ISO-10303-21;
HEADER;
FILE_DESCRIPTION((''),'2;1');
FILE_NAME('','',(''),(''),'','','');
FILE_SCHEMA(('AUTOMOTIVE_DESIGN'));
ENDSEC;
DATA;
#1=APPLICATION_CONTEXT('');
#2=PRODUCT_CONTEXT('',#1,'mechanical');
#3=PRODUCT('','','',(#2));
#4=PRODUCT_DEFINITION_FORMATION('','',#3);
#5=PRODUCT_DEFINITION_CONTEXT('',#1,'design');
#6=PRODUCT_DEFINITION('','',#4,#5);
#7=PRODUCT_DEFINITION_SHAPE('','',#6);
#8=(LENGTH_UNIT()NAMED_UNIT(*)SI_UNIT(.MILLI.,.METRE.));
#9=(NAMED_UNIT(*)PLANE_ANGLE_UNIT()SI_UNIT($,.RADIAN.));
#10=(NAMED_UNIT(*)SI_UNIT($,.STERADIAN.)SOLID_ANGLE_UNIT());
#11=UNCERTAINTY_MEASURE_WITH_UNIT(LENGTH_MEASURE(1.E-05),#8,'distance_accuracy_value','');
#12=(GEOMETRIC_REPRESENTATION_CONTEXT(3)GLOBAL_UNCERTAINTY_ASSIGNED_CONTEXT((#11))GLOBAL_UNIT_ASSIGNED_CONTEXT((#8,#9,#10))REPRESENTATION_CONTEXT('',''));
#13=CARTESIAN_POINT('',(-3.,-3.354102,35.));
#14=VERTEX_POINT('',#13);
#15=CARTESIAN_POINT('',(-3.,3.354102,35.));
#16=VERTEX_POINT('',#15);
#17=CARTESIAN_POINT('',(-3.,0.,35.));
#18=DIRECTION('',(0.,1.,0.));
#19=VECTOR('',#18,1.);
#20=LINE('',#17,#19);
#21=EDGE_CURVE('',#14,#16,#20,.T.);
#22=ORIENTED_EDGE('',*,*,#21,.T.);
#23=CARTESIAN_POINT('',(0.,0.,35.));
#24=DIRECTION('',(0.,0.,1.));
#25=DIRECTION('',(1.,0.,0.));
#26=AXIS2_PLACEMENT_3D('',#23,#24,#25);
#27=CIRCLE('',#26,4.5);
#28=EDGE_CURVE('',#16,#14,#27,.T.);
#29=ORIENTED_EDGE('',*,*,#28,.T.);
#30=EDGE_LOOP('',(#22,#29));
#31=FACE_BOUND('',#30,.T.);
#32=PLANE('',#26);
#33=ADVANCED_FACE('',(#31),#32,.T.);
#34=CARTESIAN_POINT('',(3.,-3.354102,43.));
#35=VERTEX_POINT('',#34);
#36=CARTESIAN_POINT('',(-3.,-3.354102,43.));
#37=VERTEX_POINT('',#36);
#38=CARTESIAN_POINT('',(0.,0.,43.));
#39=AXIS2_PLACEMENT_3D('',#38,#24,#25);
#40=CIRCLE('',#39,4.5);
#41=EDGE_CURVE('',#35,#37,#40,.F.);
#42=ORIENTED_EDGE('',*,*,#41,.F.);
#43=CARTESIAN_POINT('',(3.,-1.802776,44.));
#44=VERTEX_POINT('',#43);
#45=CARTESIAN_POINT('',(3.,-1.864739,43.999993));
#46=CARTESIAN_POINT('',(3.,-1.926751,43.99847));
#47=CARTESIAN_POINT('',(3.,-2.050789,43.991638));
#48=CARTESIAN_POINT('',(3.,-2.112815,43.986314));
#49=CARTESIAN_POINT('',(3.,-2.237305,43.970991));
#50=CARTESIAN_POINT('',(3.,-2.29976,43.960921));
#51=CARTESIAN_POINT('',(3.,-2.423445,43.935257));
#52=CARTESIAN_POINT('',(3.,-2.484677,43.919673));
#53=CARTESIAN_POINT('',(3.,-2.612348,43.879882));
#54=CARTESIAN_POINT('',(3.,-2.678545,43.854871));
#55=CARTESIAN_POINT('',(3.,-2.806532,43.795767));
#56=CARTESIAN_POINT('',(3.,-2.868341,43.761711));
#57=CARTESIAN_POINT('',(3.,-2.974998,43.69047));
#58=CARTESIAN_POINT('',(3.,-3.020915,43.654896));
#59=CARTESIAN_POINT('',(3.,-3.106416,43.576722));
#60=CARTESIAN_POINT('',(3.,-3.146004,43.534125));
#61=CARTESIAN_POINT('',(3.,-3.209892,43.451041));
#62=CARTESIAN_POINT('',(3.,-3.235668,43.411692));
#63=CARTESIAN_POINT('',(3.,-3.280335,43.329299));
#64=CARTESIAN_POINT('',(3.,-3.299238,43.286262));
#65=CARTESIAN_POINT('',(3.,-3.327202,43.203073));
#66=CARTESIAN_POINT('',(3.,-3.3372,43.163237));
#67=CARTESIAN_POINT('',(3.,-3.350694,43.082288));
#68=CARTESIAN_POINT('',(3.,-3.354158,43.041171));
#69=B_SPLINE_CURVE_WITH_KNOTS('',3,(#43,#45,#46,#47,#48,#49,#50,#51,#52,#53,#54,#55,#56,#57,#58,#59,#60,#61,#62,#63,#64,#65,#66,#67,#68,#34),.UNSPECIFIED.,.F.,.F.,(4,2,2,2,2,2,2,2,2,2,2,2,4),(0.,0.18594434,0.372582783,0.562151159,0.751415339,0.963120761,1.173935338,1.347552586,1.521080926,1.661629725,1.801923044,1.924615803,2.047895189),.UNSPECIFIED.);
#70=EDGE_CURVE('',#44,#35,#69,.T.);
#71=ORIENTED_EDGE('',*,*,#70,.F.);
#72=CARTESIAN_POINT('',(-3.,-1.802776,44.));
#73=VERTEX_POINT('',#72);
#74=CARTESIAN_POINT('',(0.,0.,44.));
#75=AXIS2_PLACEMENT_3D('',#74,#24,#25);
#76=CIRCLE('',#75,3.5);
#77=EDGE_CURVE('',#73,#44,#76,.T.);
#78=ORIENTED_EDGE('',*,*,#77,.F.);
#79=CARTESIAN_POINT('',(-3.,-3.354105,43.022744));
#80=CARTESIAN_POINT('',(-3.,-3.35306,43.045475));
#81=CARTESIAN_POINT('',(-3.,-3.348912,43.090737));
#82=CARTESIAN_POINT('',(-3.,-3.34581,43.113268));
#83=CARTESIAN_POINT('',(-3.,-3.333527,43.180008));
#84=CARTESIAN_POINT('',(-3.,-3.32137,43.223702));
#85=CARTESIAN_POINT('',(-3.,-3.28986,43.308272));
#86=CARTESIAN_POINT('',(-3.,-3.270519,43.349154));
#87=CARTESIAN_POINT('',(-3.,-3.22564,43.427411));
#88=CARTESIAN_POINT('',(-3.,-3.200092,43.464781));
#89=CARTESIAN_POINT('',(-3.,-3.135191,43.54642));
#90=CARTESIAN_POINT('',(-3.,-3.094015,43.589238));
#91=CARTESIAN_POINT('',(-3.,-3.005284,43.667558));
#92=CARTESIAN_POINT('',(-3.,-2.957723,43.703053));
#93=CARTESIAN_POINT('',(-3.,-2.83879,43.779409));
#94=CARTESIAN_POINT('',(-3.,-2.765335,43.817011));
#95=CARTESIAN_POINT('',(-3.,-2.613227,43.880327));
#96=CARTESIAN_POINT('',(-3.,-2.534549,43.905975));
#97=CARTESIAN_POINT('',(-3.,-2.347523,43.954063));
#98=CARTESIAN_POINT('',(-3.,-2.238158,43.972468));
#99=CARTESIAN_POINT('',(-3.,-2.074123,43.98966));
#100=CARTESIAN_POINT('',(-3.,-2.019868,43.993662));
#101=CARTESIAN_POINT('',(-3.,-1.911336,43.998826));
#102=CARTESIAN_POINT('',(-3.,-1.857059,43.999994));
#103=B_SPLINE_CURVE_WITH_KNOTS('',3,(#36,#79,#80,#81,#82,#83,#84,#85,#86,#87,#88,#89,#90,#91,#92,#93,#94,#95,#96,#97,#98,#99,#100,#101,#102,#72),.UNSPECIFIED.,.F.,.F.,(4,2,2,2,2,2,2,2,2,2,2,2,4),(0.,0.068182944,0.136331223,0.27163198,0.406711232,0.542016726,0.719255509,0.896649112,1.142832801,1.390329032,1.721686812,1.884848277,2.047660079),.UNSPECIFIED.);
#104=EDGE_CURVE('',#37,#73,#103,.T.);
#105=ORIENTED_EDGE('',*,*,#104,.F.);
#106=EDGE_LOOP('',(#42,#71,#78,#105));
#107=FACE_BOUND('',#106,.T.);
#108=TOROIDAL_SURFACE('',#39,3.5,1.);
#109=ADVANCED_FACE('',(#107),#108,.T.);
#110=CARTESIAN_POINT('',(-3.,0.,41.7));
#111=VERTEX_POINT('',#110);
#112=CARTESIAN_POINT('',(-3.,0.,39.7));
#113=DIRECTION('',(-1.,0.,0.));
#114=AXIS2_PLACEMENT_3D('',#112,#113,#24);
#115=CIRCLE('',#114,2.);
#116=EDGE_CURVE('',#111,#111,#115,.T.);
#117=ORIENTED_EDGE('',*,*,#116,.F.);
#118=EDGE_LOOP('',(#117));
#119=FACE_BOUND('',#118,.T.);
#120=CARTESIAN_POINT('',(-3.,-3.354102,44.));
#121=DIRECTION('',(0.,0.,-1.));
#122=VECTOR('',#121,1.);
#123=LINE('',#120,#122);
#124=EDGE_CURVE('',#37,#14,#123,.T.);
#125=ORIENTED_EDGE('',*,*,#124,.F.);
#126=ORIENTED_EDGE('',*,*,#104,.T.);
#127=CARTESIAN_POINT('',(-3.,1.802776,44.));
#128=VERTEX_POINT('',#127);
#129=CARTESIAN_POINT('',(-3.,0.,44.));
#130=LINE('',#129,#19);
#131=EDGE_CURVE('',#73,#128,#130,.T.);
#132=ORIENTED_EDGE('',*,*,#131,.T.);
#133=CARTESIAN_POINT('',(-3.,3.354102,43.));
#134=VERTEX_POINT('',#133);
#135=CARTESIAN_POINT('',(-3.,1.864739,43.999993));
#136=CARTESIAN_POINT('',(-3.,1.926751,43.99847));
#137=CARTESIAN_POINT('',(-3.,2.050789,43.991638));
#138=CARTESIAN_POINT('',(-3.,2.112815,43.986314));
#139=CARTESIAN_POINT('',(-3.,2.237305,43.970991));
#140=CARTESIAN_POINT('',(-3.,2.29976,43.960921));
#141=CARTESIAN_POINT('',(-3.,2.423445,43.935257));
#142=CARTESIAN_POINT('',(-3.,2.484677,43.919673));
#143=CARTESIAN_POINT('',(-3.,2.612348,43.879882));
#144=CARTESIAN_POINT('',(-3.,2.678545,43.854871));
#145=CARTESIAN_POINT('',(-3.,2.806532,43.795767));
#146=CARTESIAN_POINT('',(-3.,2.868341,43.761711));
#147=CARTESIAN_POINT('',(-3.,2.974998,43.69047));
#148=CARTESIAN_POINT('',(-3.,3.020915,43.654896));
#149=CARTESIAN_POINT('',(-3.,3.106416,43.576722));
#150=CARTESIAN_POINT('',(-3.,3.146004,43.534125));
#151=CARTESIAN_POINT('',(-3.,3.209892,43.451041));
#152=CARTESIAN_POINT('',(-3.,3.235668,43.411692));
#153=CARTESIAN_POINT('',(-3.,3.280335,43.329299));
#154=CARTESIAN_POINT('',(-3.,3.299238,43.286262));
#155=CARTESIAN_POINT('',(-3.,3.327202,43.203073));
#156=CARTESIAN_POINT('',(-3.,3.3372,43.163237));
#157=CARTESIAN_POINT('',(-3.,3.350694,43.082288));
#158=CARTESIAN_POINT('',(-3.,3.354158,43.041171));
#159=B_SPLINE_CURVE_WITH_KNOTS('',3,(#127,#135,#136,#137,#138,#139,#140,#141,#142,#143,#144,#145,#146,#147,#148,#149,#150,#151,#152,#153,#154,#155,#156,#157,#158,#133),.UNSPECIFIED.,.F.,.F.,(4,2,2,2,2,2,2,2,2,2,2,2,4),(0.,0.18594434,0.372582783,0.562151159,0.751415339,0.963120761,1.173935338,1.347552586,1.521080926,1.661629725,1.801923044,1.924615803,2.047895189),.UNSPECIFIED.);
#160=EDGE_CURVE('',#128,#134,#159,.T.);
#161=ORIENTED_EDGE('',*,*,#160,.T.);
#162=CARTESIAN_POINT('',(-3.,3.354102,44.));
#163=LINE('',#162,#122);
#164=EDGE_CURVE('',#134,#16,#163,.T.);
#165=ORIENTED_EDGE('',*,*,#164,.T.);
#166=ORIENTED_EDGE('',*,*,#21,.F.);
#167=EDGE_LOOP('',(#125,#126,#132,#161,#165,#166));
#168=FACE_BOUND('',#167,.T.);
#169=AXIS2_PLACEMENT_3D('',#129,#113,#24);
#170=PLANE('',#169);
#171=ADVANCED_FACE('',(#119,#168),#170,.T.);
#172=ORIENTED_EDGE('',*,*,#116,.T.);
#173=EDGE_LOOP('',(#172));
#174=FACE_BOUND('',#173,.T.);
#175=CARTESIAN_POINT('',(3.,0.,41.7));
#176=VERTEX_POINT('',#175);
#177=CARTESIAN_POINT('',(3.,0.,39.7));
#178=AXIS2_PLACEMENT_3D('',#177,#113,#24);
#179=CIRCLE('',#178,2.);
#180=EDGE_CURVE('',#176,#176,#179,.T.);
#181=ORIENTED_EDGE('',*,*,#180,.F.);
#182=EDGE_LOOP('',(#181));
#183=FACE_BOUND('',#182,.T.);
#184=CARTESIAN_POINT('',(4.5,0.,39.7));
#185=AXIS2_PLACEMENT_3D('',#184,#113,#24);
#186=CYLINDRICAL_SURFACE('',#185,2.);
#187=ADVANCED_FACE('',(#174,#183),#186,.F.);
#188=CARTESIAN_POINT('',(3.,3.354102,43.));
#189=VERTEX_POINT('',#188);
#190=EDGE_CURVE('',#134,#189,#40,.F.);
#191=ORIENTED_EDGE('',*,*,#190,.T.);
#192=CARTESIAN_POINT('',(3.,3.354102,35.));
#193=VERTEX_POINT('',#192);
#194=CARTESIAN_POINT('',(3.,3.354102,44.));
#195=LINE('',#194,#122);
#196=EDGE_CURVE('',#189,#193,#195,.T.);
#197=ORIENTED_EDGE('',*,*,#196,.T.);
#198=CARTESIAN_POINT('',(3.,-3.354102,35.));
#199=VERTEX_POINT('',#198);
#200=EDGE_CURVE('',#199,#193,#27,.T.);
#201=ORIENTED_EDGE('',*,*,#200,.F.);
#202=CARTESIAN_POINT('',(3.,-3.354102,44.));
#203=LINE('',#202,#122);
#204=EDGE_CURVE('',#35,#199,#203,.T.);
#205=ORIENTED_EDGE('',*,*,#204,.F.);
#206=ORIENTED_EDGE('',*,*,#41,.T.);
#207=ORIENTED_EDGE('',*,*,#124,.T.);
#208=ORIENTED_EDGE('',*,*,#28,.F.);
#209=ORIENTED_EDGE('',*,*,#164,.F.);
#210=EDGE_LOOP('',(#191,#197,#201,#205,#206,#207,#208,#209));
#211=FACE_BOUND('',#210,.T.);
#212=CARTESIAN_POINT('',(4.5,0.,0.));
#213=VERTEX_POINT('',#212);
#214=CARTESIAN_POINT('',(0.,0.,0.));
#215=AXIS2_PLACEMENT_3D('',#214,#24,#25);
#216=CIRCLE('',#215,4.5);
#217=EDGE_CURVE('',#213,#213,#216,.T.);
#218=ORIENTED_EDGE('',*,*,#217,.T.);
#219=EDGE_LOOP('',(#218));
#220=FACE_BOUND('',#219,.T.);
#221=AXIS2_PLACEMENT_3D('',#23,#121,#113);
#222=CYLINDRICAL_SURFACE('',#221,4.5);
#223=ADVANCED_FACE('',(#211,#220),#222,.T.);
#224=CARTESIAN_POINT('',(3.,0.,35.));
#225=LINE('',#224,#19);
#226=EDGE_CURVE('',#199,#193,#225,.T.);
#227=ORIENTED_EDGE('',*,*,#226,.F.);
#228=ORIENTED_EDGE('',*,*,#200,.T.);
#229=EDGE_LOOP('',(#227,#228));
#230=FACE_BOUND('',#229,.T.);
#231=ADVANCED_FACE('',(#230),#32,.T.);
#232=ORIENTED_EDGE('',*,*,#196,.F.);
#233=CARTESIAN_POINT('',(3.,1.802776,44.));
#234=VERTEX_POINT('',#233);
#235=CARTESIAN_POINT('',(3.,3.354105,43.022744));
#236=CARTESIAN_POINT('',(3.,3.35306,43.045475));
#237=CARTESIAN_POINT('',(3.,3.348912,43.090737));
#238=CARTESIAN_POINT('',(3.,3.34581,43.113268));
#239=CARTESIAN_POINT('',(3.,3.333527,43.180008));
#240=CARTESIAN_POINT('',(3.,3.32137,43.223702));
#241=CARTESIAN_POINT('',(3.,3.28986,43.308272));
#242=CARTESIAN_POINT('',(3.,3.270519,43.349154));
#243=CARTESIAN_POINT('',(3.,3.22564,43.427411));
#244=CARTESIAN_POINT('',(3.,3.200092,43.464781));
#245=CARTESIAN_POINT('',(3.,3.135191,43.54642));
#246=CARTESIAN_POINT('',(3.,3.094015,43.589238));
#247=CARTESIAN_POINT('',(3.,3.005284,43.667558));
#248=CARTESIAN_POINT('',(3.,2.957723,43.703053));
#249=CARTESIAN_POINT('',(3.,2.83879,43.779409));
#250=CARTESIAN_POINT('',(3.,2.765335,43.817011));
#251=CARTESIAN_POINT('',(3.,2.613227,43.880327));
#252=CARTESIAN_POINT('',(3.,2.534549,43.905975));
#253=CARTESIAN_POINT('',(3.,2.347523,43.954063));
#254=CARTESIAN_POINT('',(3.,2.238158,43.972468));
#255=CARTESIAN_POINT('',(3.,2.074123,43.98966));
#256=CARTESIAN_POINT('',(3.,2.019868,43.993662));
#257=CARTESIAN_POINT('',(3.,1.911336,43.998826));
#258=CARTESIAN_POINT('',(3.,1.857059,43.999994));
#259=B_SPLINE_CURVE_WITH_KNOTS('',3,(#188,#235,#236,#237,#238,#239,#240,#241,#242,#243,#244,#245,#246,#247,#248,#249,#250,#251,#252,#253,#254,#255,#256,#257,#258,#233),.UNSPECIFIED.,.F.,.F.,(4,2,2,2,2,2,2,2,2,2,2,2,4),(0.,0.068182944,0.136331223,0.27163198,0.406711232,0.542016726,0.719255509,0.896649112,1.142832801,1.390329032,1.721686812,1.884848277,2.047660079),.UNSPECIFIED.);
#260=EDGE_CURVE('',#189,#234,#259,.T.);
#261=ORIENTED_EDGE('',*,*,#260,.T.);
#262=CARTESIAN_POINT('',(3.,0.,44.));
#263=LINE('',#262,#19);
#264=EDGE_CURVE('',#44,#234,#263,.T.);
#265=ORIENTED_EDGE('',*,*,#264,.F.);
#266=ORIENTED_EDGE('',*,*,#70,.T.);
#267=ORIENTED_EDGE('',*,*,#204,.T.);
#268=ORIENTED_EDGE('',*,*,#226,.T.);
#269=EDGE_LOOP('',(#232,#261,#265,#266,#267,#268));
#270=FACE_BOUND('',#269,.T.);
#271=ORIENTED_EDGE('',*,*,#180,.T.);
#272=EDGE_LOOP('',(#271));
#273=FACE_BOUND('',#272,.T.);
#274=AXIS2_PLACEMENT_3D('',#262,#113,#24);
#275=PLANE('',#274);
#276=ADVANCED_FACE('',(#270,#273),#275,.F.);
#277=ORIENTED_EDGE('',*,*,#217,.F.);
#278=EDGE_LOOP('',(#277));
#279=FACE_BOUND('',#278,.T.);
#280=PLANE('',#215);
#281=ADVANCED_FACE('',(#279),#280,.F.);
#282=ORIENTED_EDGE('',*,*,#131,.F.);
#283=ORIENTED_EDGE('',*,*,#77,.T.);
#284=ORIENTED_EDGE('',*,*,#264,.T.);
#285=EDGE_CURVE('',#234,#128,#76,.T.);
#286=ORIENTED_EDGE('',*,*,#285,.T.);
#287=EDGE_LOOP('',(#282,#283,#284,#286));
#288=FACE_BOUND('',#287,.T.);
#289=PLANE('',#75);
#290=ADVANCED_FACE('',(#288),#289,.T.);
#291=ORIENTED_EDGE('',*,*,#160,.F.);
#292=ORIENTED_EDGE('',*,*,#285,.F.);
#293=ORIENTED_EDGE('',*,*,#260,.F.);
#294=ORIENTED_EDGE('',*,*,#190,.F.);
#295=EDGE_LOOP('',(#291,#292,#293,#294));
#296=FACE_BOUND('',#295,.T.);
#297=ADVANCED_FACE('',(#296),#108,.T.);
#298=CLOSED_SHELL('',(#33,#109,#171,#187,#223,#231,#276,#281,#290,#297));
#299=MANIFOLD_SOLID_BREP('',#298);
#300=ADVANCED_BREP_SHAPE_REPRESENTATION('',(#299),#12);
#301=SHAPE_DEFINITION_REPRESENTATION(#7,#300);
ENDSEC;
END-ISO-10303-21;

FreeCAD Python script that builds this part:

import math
import FreeCAD as App
import Part
import Sketcher


def edges_at(feature, points):
    """Names of the edges that pass closest to the given points."""
    edges = feature.Shape.Edges
    near = lambda p: min(range(len(edges)), key=lambda i: edges[i].distToShape(Part.Vertex(*p))[0])
    return sorted({f"Edge{near(p) + 1}" for p in points})

doc = App.newDocument("Part")
params = doc.addObject("Spreadsheet::Sheet", "Params")
for row, (alias, value) in enumerate([
    ("sketch1_diameter", "9 mm"),
    ("pad1_length", "35 mm"),
    ("sketch2_radius", "4.5 mm"),
    ("pad2_length", "9 mm"),
    ("sketch3_diameter", "4 mm"),
    ("fillet_radius", "1 mm"),
], start=1):
    params.set(f"A{row}", alias)
    params.set(f"B{row}", "=" + value)
    params.setAlias(f"B{row}", alias)

body = doc.addObject("PartDesign::Body", "Body")

sketch1 = body.newObject("Sketcher::SketchObject", "Sketch")
sketch1.AttachmentSupport = (doc.getObject("XY_Plane"), [""])
sketch1.MapMode = "FlatFace"
sketch1.addGeometry(Part.Circle(App.Vector(0, 0, 0), App.Vector(0, 0, 1), 4.5), False)
sketch1.addConstraint([
    Sketcher.Constraint("Coincident", 0, 3, -1, 1),
    Sketcher.Constraint("Diameter", 0, 9.0),
])
sketch1.setExpression("Constraints[1]", "Params.sketch1_diameter")
pad1 = body.newObject("PartDesign::Pad", "Pad")
pad1.Profile = sketch1
pad1.setExpression("Length", "Params.pad1_length")

sketch2 = body.newObject("Sketcher::SketchObject", "Sketch001")
sketch2.AttachmentSupport = (doc.getObject("XY_Plane"), [""])
sketch2.MapMode = "FlatFace"
sketch2.AttachmentOffset = App.Placement(App.Vector(0, 0, 35), App.Rotation())
sketch2.addGeometry([
    Part.ArcOfCircle(Part.Circle(App.Vector(0, 0, 0), App.Vector(0, 0, 1), 4.5), math.radians(48.189685), math.radians(131.810315)),
    Part.LineSegment(App.Vector(-3, 3.354102, 0), App.Vector(-3, -3.354102, 0)),
    Part.ArcOfCircle(Part.Circle(App.Vector(0, 0, 0), App.Vector(0, 0, 1), 4.5), math.radians(-131.810315), math.radians(-48.189685)),
    Part.LineSegment(App.Vector(3, -3.354102, 0), App.Vector(3, 3.354102, 0)),
], False)
sketch2.addConstraint([
    Sketcher.Constraint("Coincident", 0, 2, 1, 1),
    Sketcher.Constraint("Coincident", 1, 2, 2, 1),
    Sketcher.Constraint("Coincident", 2, 2, 3, 1),
    Sketcher.Constraint("Coincident", 3, 2, 0, 1),
    Sketcher.Constraint("Vertical", 1),
    Sketcher.Constraint("Vertical", 3),
    Sketcher.Constraint("Coincident", 0, 3, -1, 1),
    Sketcher.Constraint("Coincident", 2, 3, -1, 1),
    Sketcher.Constraint("Equal", 0, 2),
    Sketcher.Constraint("Horizontal", 1, 2, 2, 2),
    Sketcher.Constraint("Radius", 0, 4.5),
    Sketcher.Constraint("DistanceX", 0, 2, -1, 1, 3.0),
])
sketch2.setExpression("Constraints[10]", "Params.sketch2_radius")
pad2 = body.newObject("PartDesign::Pad", "Pad001")
pad2.Profile = sketch2
pad2.setExpression("Length", "Params.pad2_length")

sketch3 = body.newObject("Sketcher::SketchObject", "Sketch002")
sketch3.AttachmentSupport = (doc.getObject("YZ_Plane"), [""])
sketch3.MapMode = "FlatFace"
sketch3.AttachmentOffset = App.Placement(App.Vector(0, 0, -3), App.Rotation())
sketch3.addGeometry(Part.Circle(App.Vector(0, 39.7, 0), App.Vector(0, 0, 1), 2), False)
sketch3.addConstraint([
    Sketcher.Constraint("PointOnObject", 0, 3, -2),
    Sketcher.Constraint("Diameter", 0, 4.0),
    Sketcher.Constraint("DistanceY", -1, 1, 0, 3, 39.7),
])
sketch3.setExpression("Constraints[1]", "Params.sketch3_diameter")
pocket1 = body.newObject("PartDesign::Pocket", "Pocket")
pocket1.Profile = sketch3
pocket1.Type = "ThroughAll"
pocket1.Reversed = True
doc.recompute()

fillet = body.newObject("PartDesign::Fillet", "Fillet")
fillet.Base = (pocket1, edges_at(pocket1, [(0, 4.5, 44), (0, -4.5, 44)]))
fillet.setExpression("Radius", "Params.fillet_radius")

doc.recompute()
